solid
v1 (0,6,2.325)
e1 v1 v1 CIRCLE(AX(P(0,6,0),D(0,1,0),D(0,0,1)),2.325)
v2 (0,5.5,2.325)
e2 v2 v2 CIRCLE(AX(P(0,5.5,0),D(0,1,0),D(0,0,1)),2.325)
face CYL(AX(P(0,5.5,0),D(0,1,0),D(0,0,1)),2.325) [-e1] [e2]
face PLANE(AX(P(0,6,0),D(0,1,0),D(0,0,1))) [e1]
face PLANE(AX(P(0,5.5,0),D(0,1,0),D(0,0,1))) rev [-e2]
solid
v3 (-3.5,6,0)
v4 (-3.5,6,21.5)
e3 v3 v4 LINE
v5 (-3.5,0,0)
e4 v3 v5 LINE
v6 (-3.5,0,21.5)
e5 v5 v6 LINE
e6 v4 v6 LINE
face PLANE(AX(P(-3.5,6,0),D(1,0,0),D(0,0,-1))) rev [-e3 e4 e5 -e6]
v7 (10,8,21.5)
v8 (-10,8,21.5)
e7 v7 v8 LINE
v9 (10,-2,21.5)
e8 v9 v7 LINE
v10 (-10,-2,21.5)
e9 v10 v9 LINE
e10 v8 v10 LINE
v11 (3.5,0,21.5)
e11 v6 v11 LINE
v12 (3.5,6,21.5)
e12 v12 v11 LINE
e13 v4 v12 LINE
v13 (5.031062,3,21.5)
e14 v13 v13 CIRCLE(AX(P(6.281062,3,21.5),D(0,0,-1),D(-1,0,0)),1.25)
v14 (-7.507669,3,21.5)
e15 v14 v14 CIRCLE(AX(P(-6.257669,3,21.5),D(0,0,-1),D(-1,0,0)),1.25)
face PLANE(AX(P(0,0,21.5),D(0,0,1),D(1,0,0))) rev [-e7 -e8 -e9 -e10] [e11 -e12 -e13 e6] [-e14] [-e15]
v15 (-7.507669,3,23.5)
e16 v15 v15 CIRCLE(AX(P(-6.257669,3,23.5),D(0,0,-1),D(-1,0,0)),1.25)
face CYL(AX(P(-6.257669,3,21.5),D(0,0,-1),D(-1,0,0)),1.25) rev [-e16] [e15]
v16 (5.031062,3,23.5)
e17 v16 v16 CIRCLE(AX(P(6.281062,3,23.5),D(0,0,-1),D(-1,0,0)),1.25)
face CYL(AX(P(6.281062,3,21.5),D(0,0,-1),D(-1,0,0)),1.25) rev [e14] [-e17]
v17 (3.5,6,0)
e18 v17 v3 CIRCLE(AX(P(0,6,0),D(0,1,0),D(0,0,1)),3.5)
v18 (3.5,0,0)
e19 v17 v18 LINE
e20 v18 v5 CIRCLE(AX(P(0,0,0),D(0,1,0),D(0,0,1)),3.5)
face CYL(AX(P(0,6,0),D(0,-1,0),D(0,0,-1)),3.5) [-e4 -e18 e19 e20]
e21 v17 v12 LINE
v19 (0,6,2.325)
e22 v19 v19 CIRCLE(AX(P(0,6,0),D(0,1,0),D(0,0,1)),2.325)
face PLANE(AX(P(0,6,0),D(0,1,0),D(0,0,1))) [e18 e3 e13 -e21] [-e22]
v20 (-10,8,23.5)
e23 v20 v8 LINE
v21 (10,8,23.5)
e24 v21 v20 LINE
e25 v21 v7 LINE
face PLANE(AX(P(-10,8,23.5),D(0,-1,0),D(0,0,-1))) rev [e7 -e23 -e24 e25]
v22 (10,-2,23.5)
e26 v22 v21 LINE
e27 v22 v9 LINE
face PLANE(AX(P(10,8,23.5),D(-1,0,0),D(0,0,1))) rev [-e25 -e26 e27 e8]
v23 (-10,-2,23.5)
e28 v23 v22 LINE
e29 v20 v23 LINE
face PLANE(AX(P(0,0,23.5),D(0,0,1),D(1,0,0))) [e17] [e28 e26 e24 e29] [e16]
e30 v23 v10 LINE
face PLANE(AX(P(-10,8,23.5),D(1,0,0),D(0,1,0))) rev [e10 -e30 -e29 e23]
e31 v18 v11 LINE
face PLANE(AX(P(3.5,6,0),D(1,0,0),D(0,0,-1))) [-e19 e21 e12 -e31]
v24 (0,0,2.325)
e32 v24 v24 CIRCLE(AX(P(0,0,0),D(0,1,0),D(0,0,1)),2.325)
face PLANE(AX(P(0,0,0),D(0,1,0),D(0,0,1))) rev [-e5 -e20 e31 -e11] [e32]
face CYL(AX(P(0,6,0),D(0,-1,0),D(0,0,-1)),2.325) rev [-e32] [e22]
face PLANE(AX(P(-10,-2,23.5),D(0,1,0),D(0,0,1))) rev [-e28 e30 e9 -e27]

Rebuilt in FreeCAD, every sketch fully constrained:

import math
import FreeCAD as App
import Part
import Sketcher
Q = App.Units.Quantity


def add_polygon(sketch, points):
    """Adds a closed chain of lines whose ends are joined by coincident constraints."""
    first, n = sketch.GeometryCount, len(points)
    for a, b in zip(points, points[1:] + points[:1]):
        sketch.addGeometry(Part.LineSegment(App.Vector(*a, 0), App.Vector(*b, 0)), False)
    for i in range(n):
        sketch.addConstraint(Sketcher.Constraint("Coincident", first + i, 2, first + (i + 1) % n, 1))

doc = App.newDocument("Part")
params = doc.addObject("Spreadsheet::Sheet", "Params")
for row, (alias, value) in enumerate([
    ("sketch1_radius", "3.5 mm"),
    ("sketch1_diameter", "4.65 mm"),
    ("sketch1_height", "21.5 mm"),
    ("pad1_length", "6 mm"),
    ("sketch2_width", "20 mm"),
    ("sketch2_height", "10 mm"),
    ("pad2_length", "2 mm"),
    ("sketch3_diameter", "2.5 mm"),
    ("hole_diameter", "2.5 mm"),
    ("sketch4_diameter", "4.65 mm"),
    ("pad3_length", "0.5 mm"),
], start=1):
    params.set(f"A{row}", alias)
    params.set(f"B{row}", "=" + value)
    params.setAlias(f"B{row}", alias)

body = doc.addObject("PartDesign::Body", "Body")

# Sketch on XZ plane
sketch1 = body.newObject("Sketcher::SketchObject", "Sketch")
sketch1.AttachmentSupport = (doc.getObject("XZ_Plane"), [""])
sketch1.MapMode = "FlatFace"
sketch1.addGeometry(Part.LineSegment(App.Vector(-3.5, 0, 0), App.Vector(-3.5, 21.5, 0)), False)
sketch1.addGeometry(Part.LineSegment(App.Vector(-3.5, 21.5, 0), App.Vector(3.5, 21.5, 0)), False)
sketch1.addGeometry(Part.LineSegment(App.Vector(3.5, 21.5, 0), App.Vector(3.5, 0, 0)), False)
sketch1.addGeometry(Part.ArcOfCircle(Part.Circle(App.Vector(0, 0, 0), App.Vector(0, 0, 1), 3.5), math.radians(180), math.radians(360)), False)
sketch1.addGeometry(Part.Circle(App.Vector(0, 0, 0), App.Vector(0, 0, 1), 2.3), False)
sketch1.addConstraint(Sketcher.Constraint("Coincident", 0, 2, 1, 1))
sketch1.addConstraint(Sketcher.Constraint("Coincident", 1, 2, 2, 1))
sketch1.addConstraint(Sketcher.Constraint("Tangent", 2, 2, 3, 2))
sketch1.addConstraint(Sketcher.Constraint("Tangent", 3, 1, 0, 1))
sketch1.addConstraint(Sketcher.Constraint("Vertical", 0))
sketch1.addConstraint(Sketcher.Constraint("Horizontal", 1))
sketch1.addConstraint(Sketcher.Constraint("Vertical", 2))
sketch1.addConstraint(Sketcher.Constraint("Coincident", 3, 3, -1, 1))
sketch1.addConstraint(Sketcher.Constraint("Coincident", 4, 3, -1, 1))
sketch1.addConstraint(Sketcher.Constraint("Radius", 3, Q("3.5 mm")))
sketch1.addConstraint(Sketcher.Constraint("Diameter", 4, Q("4.65 mm")))
sketch1.addConstraint(Sketcher.Constraint("DistanceY", 0, 1, 0, 2, Q("21.5 mm")))
sketch1.setExpression("Constraints[9]", "Params.sketch1_radius")
sketch1.setExpression("Constraints[10]", "Params.sketch1_diameter")
sketch1.setExpression("Constraints[11]", "Params.sketch1_height")
pad1 = body.newObject("PartDesign::Pad", "Pad")
pad1.Profile = sketch1
pad1.setExpression("Length", "Params.pad1_length")
pad1.Reversed = True

# Sketch on XY plane
sketch2 = body.newObject("Sketcher::SketchObject", "Sketch001")
sketch2.AttachmentSupport = (doc.getObject("XY_Plane"), [""])
sketch2.MapMode = "FlatFace"
sketch2.AttachmentOffset = App.Placement(App.Vector(0, 0, 21.5), App.Rotation())
add_polygon(sketch2, [(-10, 8), (-10, -2), (10, -2), (10, 8)])  # lines 0-3
sketch2.addConstraint(Sketcher.Constraint("Vertical", 0))
sketch2.addConstraint(Sketcher.Constraint("Horizontal", 1))
sketch2.addConstraint(Sketcher.Constraint("Vertical", 2))
sketch2.addConstraint(Sketcher.Constraint("Horizontal", 3))
sketch2.addConstraint(Sketcher.Constraint("DistanceX", 1, 1, 1, 2, Q("20 mm")))
sketch2.addConstraint(Sketcher.Constraint("DistanceY", 0, 2, 0, 1, Q("10 mm")))
sketch2.addConstraint(Sketcher.Constraint("DistanceX", 0, 2, -1, 1, Q("10 mm")))
sketch2.addConstraint(Sketcher.Constraint("DistanceY", 0, 2, -1, 1, Q("2 mm")))
sketch2.setExpression("Constraints[8]", "Params.sketch2_width")
sketch2.setExpression("Constraints[9]", "Params.sketch2_height")
pad2 = body.newObject("PartDesign::Pad", "Pad001")
pad2.Profile = sketch2
pad2.setExpression("Length", "Params.pad2_length")

# Sketch on XY plane
sketch3 = body.newObject("Sketcher::SketchObject", "Sketch002")
sketch3.AttachmentSupport = (doc.getObject("XY_Plane"), [""])
sketch3.MapMode = "FlatFace"
sketch3.AttachmentOffset = App.Placement(App.Vector(0, 0, 21.5), App.Rotation())
sketch3.addGeometry(Part.Circle(App.Vector(-6.3, 3, 0), App.Vector(0, 0, 1), 1.2), False)
sketch3.addGeometry(Part.Circle(App.Vector(6.3, 3, 0), App.Vector(0, 0, 1), 1.2), False)
sketch3.addConstraint(Sketcher.Constraint("Equal", 0, 1))
sketch3.addConstraint(Sketcher.Constraint("Horizontal", 0, 3, 1, 3))
sketch3.addConstraint(Sketcher.Constraint("Diameter", 0, Q("2.5 mm")))
sketch3.addConstraint(Sketcher.Constraint("DistanceY", -1, 1, 0, 3, Q("3 mm")))
sketch3.addConstraint(Sketcher.Constraint("DistanceX", 0, 3, -1, 1, Q("6.257669 mm")))
sketch3.addConstraint(Sketcher.Constraint("DistanceX", -1, 1, 1, 3, Q("6.281062 mm")))
sketch3.setExpression("Constraints[2]", "Params.sketch3_diameter")
doc.recompute()
hole = body.newObject("PartDesign::Hole", "Hole")
hole.Profile = sketch3
hole.ThreadType = "None"
hole.setExpression("Diameter", "Params.hole_diameter")
hole.DepthType = "ThroughAll"
hole.Reversed = True
body2 = doc.addObject("PartDesign::Body", "Body001")

# Sketch on XZ plane
sketch4 = body2.newObject("Sketcher::SketchObject", "Sketch003")
sketch4.AttachmentSupport = (doc.getObject("XZ_Plane001"), [""])
sketch4.MapMode = "FlatFace"
sketch4.AttachmentOffset = App.Placement(App.Vector(0, 0, -6), App.Rotation())
sketch4.addGeometry(Part.Circle(App.Vector(0, 0, 0), App.Vector(0, 0, 1), 2.3), False)
sketch4.addConstraint(Sketcher.Constraint("Coincident", 0, 3, -1, 1))
sketch4.addConstraint(Sketcher.Constraint("Diameter", 0, Q("4.65 mm")))
sketch4.setExpression("Constraints[1]", "Params.sketch4_diameter")
pad3 = body2.newObject("PartDesign::Pad", "Pad002")
pad3.Profile = sketch4
pad3.setExpression("Length", "Params.pad3_length")

doc.recompute()
